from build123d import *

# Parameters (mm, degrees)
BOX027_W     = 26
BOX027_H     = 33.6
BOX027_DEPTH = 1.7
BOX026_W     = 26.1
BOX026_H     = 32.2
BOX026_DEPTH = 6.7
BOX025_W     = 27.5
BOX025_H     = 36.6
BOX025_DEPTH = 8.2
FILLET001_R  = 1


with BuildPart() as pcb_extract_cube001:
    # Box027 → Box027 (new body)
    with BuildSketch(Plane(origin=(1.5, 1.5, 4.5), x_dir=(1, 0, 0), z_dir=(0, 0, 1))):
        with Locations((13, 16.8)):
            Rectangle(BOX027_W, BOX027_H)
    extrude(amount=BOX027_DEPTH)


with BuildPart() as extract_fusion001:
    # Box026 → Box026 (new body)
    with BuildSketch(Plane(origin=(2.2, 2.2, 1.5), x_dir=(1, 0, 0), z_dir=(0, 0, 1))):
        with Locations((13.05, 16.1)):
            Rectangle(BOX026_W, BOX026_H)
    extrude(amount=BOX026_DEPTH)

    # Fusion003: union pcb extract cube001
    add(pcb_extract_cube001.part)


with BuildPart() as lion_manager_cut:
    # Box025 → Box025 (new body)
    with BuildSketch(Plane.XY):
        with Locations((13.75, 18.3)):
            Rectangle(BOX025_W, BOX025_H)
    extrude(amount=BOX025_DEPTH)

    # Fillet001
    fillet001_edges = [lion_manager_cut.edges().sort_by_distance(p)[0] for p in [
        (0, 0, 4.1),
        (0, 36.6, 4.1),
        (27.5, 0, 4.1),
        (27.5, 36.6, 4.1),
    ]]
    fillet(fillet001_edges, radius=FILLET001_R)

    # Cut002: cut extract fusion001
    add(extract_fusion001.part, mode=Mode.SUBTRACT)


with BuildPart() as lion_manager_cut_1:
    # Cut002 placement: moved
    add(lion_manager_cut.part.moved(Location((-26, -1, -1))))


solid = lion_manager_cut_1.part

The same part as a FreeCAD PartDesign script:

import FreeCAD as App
import Part
import Sketcher
from FreeCAD import Vector
Q = App.Units.Quantity


def edges_at(feature, points):
    """Names of the edges that pass closest to the given points."""
    edges = feature.Shape.Edges
    near = lambda p: min(range(len(edges)), key=lambda i: edges[i].distToShape(Part.Vertex(*p))[0])
    return sorted({f"Edge{near(p) + 1}" for p in points})

doc = App.newDocument("Part")
body = doc.addObject("PartDesign::Body", "Body")

# Sketch on XY plane
sketch1 = body.newObject("Sketcher::SketchObject", "Sketch")
sketch1.AttachmentSupport = (doc.getObject("XY_Plane"), [""])
sketch1.MapMode = "FlatFace"
sketch1.AttachmentOffset = App.Placement(Vector(0, 0, 4.5), App.Rotation())
sketch1.addGeometry([
    Part.LineSegment(Vector(1.5, 35.1, 0), Vector(1.5, 1.5, 0)),
    Part.LineSegment(Vector(1.5, 1.5, 0), Vector(27.5, 1.5, 0)),
    Part.LineSegment(Vector(27.5, 1.5, 0), Vector(27.5, 35.1, 0)),
    Part.LineSegment(Vector(27.5, 35.1, 0), Vector(1.5, 35.1, 0)),
], False)
sketch1.addConstraint([
    Sketcher.Constraint("Coincident", 0, 2, 1, 1),
    Sketcher.Constraint("Coincident", 1, 2, 2, 1),
    Sketcher.Constraint("Coincident", 2, 2, 3, 1),
    Sketcher.Constraint("Coincident", 3, 2, 0, 1),
    Sketcher.Constraint("Vertical", 0),
    Sketcher.Constraint("Horizontal", 1),
    Sketcher.Constraint("Vertical", 2),
    Sketcher.Constraint("Horizontal", 3),
    Sketcher.Constraint("DistanceX", 1, 1, 1, 2, Q("26 mm")),
    Sketcher.Constraint("DistanceY", 0, 2, 0, 1, Q("33.6 mm")),
    Sketcher.Constraint("DistanceX", -1, 1, 0, 2, Q("1.5 mm")),
    Sketcher.Constraint("DistanceY", -1, 1, 0, 2, Q("1.5 mm")),
])
pad1 = body.newObject("PartDesign::Pad", "Pad")
pad1.Profile = sketch1
pad1.Length = 1.7
body2 = doc.addObject("PartDesign::Body", "Body001")

# Sketch on XY plane
sketch2 = body2.newObject("Sketcher::SketchObject", "Sketch001")
sketch2.AttachmentSupport = (doc.getObject("XY_Plane001"), [""])
sketch2.MapMode = "FlatFace"
sketch2.AttachmentOffset = App.Placement(Vector(0, 0, 1.5), App.Rotation())
sketch2.addGeometry([
    Part.LineSegment(Vector(2.2, 34.4, 0), Vector(2.2, 2.2, 0)),
    Part.LineSegment(Vector(2.2, 2.2, 0), Vector(28.3, 2.2, 0)),
    Part.LineSegment(Vector(28.3, 2.2, 0), Vector(28.3, 34.4, 0)),
    Part.LineSegment(Vector(28.3, 34.4, 0), Vector(2.2, 34.4, 0)),
], False)
sketch2.addConstraint([
    Sketcher.Constraint("Coincident", 0, 2, 1, 1),
    Sketcher.Constraint("Coincident", 1, 2, 2, 1),
    Sketcher.Constraint("Coincident", 2, 2, 3, 1),
    Sketcher.Constraint("Coincident", 3, 2, 0, 1),
    Sketcher.Constraint("Vertical", 0),
    Sketcher.Constraint("Horizontal", 1),
    Sketcher.Constraint("Vertical", 2),
    Sketcher.Constraint("Horizontal", 3),
    Sketcher.Constraint("DistanceX", 1, 1, 1, 2, Q("26.1 mm")),
    Sketcher.Constraint("DistanceY", 0, 2, 0, 1, Q("32.2 mm")),
    Sketcher.Constraint("DistanceX", -1, 1, 0, 2, Q("2.2 mm")),
    Sketcher.Constraint("DistanceY", -1, 1, 0, 2, Q("2.2 mm")),
])
pad2 = body2.newObject("PartDesign::Pad", "Pad001")
pad2.Profile = sketch2
pad2.Length = 6.7
doc.recompute()

boolean = body2.newObject("PartDesign::Boolean", "Boolean")
boolean.Type = "Fuse"
boolean.addObjects([body])
body3 = doc.addObject("PartDesign::Body", "Body002")

# Sketch on XY plane
sketch3 = body3.newObject("Sketcher::SketchObject", "Sketch002")
sketch3.AttachmentSupport = (doc.getObject("XY_Plane002"), [""])
sketch3.MapMode = "FlatFace"
sketch3.addGeometry([
    Part.LineSegment(Vector(0, 36.6, 0), Vector(0, 0, 0)),
    Part.LineSegment(Vector(0, 0, 0), Vector(27.5, 0, 0)),
    Part.LineSegment(Vector(27.5, 0, 0), Vector(27.5, 36.6, 0)),
    Part.LineSegment(Vector(27.5, 36.6, 0), Vector(0, 36.6, 0)),
], False)
sketch3.addConstraint([
    Sketcher.Constraint("Coincident", 0, 2, 1, 1),
    Sketcher.Constraint("Coincident", 1, 2, 2, 1),
    Sketcher.Constraint("Coincident", 2, 2, 3, 1),
    Sketcher.Constraint("Coincident", 3, 2, 0, 1),
    Sketcher.Constraint("Vertical", 0),
    Sketcher.Constraint("Horizontal", 1),
    Sketcher.Constraint("Vertical", 2),
    Sketcher.Constraint("Horizontal", 3),
    Sketcher.Constraint("Coincident", 0, 2, -1, 1),
    Sketcher.Constraint("DistanceX", 1, 1, 1, 2, Q("27.5 mm")),
    Sketcher.Constraint("DistanceY", 0, 2, 0, 1, Q("36.6 mm")),
])
pad3 = body3.newObject("PartDesign::Pad", "Pad002")
pad3.Profile = sketch3
pad3.Length = 8.2
doc.recompute()

fillet = body3.newObject("PartDesign::Fillet", "Fillet")
fillet.Base = (pad3, edges_at(pad3, [
    (0, 0, 4.1),
    (0, 36.6, 4.1),
    (27.5, 0, 4.1),
    (27.5, 36.6, 4.1),
]))
fillet.Radius = 1
doc.recompute()

boolean2 = body3.newObject("PartDesign::Boolean", "Boolean001")
boolean2.Type = "Cut"
boolean2.addObjects([body2])
body4 = doc.addObject("PartDesign::Body", "Body003")
doc.recompute()

body3.Placement = App.Placement(Vector(-26, -1, -1), App.Rotation(Vector(0, 0, 1), 0))
boolean3 = body4.newObject("PartDesign::Boolean", "Boolean002")
boolean3.Type = "Fuse"
boolean3.addObjects([body3])

doc.recompute()
